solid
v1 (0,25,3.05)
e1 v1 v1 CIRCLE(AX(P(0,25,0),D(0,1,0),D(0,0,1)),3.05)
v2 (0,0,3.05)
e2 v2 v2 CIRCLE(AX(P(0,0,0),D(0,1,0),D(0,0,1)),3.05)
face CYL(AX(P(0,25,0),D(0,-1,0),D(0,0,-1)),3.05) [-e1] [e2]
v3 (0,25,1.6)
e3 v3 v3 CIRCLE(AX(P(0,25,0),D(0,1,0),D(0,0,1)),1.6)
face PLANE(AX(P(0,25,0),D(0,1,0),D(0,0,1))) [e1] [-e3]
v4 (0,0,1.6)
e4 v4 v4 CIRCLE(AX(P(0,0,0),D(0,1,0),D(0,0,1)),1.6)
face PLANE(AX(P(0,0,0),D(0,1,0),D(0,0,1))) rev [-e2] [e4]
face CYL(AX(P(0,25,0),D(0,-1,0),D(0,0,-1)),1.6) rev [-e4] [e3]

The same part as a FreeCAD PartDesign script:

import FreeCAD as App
import Part
import Sketcher
from FreeCAD import Vector
Q = App.Units.Quantity

doc = App.newDocument("Part")
body = doc.addObject("PartDesign::Body", "Body")

# Sketch on XZ plane
sketch1 = body.newObject("Sketcher::SketchObject", "Sketch")
sketch1.AttachmentSupport = (doc.getObject("XZ_Plane"), [""])
sketch1.MapMode = "FlatFace"
sketch1.addGeometry(Part.Circle(Vector(0, 0, 0), Vector(0, 0, 1), 3), False)
sketch1.addGeometry(Part.Circle(Vector(0, 0, 0), Vector(0, 0, 1), 1.6), False)
sketch1.addConstraint(Sketcher.Constraint("Coincident", 0, 3, -1, 1))
sketch1.addConstraint(Sketcher.Constraint("Coincident", 1, 3, -1, 1))
sketch1.addConstraint(Sketcher.Constraint("Diameter", 0, Q("6.1 mm")))
sketch1.addConstraint(Sketcher.Constraint("Diameter", 1, Q("3.2 mm")))
pad1 = body.newObject("PartDesign::Pad", "Pad")
pad1.Profile = sketch1
pad1.Length = 25
pad1.Reversed = True

doc.recompute()
